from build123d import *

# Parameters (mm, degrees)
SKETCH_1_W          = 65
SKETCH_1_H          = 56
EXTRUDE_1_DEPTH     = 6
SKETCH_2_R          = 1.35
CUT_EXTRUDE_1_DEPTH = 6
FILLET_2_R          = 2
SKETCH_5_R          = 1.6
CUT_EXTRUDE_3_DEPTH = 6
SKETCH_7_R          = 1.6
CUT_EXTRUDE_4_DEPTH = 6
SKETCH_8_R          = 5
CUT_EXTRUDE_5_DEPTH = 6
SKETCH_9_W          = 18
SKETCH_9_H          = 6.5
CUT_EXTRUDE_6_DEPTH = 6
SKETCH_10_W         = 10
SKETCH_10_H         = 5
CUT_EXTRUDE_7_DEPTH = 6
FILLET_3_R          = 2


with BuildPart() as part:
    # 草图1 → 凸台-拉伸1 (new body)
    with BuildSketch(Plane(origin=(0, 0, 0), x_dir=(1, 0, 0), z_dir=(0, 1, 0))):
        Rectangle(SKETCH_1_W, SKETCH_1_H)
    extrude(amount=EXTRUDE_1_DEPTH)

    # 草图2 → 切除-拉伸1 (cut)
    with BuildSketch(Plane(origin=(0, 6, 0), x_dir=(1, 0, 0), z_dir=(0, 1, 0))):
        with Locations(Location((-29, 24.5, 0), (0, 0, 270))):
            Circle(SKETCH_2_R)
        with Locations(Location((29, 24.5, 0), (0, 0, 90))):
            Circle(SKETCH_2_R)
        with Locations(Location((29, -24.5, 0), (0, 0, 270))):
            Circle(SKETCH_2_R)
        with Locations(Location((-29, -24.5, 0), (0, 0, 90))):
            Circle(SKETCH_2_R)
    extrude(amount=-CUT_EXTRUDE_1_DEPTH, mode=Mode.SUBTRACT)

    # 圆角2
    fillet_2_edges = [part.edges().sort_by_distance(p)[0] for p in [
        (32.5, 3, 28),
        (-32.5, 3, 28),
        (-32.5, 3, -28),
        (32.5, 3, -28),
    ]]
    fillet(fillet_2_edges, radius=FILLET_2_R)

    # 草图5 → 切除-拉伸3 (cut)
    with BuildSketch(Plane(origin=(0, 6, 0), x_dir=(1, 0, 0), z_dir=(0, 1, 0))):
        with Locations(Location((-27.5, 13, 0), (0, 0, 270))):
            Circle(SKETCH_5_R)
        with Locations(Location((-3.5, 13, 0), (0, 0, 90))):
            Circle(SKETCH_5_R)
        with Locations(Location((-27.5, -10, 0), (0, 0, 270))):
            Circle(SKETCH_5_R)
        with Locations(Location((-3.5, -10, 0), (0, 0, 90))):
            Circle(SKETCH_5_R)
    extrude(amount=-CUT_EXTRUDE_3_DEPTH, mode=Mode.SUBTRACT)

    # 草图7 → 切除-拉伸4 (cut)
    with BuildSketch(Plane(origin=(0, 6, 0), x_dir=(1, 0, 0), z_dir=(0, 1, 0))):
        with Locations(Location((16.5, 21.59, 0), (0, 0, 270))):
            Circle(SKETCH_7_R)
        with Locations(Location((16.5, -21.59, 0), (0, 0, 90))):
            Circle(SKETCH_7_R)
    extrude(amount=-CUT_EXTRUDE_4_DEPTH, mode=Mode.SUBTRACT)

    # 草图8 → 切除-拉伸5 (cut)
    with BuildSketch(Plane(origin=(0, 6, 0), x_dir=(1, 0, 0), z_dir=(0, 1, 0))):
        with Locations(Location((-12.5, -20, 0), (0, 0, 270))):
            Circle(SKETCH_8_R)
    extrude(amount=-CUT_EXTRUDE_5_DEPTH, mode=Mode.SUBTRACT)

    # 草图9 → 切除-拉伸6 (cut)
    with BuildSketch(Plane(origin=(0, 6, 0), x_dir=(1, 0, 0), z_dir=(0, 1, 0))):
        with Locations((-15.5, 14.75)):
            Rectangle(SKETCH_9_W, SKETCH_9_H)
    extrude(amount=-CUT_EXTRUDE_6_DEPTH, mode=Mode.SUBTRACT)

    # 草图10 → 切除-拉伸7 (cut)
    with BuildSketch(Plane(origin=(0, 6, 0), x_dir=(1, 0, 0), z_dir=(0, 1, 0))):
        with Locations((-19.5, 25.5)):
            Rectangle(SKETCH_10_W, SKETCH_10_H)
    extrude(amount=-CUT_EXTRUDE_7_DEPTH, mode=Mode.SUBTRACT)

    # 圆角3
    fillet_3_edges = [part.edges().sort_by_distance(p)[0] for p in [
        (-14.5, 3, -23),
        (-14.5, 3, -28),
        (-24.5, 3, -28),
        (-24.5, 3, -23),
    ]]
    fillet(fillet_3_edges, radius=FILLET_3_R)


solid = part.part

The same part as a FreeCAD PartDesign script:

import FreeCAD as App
import Part
import Sketcher
Q = App.Units.Quantity


def edges_at(feature, points):
    """Names of the edges that pass closest to the given points."""
    edges = feature.Shape.Edges
    near = lambda p: min(range(len(edges)), key=lambda i: edges[i].distToShape(Part.Vertex(*p))[0])
    return sorted({f"Edge{near(p) + 1}" for p in points})


def add_polygon(sketch, points):
    """Adds a closed chain of lines whose ends are joined by coincident constraints."""
    first, n = sketch.GeometryCount, len(points)
    for a, b in zip(points, points[1:] + points[:1]):
        sketch.addGeometry(Part.LineSegment(App.Vector(*a, 0), App.Vector(*b, 0)), False)
    for i in range(n):
        sketch.addConstraint(Sketcher.Constraint("Coincident", first + i, 2, first + (i + 1) % n, 1))

doc = App.newDocument("Part")
body = doc.addObject("PartDesign::Body", "Body")

# Sketch on XZ plane
sketch1 = doc.addObject("Sketcher::SketchObject", "Sketch")
body.addObject(sketch1)
sketch1.AttachmentSupport = (doc.XZ_Plane, [""])
sketch1.MapMode = "FlatFace"
add_polygon(sketch1, [(-32.5, -28), (-32.5, 28), (32.5, 28), (32.5, -28)])  # lines 0-3
sketch1.addConstraint(Sketcher.Constraint("Vertical", 0))
sketch1.addConstraint(Sketcher.Constraint("Horizontal", 1))
sketch1.addConstraint(Sketcher.Constraint("Vertical", 2))
sketch1.addConstraint(Sketcher.Constraint("Horizontal", 3))
sketch1.addConstraint(Sketcher.Constraint("Symmetric", 0, 2, 2, 2, -1, 1))
sketch1.addConstraint(Sketcher.Constraint("DistanceX", 1, 1, 1, 2, Q("65 mm")))
sketch1.addConstraint(Sketcher.Constraint("DistanceY", 0, 1, 0, 2, Q("56 mm")))
pad1 = doc.addObject("PartDesign::Pad", "Pad")
body.addObject(pad1)
pad1.Profile = sketch1
pad1.Length = 6
pad1.Reversed = True

# Sketch on XZ plane
sketch2 = doc.addObject("Sketcher::SketchObject", "Sketch001")
body.addObject(sketch2)
sketch2.AttachmentSupport = (doc.XZ_Plane, [""])
sketch2.MapMode = "FlatFace"
sketch2.AttachmentOffset = App.Placement(App.Vector(0, 0, -6), App.Rotation())
sketch2.addGeometry(Part.Circle(App.Vector(-29, -24.5, 0), App.Vector(0, 0, 1), 1.35), False)
sketch2.addGeometry(Part.Circle(App.Vector(29, -24.5, 0), App.Vector(0, 0, 1), 1.35), False)
sketch2.addGeometry(Part.Circle(App.Vector(29, 24.5, 0), App.Vector(0, 0, 1), 1.35), False)
sketch2.addGeometry(Part.Circle(App.Vector(-29, 24.5, 0), App.Vector(0, 0, 1), 1.35), False)
sketch2.addConstraint(Sketcher.Constraint("Equal", 0, 1))
sketch2.addConstraint(Sketcher.Constraint("Equal", 1, 2))
sketch2.addConstraint(Sketcher.Constraint("Equal", 2, 3))
sketch2.addConstraint(Sketcher.Constraint("Symmetric", 0, 3, 2, 3, -1, 1))
sketch2.addConstraint(Sketcher.Constraint("Symmetric", 1, 3, 3, 3, -1, 1))
sketch2.addConstraint(Sketcher.Constraint("Symmetric", 0, 3, 1, 3, -2))
sketch2.addConstraint(Sketcher.Constraint("Diameter", 0, Q("2.7 mm")))
sketch2.addConstraint(Sketcher.Constraint("DistanceX", 0, 3, -1, 1, Q("29 mm")))
sketch2.addConstraint(Sketcher.Constraint("DistanceY", 1, 3, 2, 3, Q("49 mm")))
pocket1 = doc.addObject("PartDesign::Pocket", "Pocket")
body.addObject(pocket1)
pocket1.Profile = sketch2
pocket1.Length = 6
pocket1.Reversed = True
doc.recompute()

fillet = doc.addObject("PartDesign::Fillet", "Fillet")
body.addObject(fillet)
fillet.Base = (pocket1, edges_at(pocket1, [
    (32.5, 3, 28),
    (-32.5, 3, 28),
    (-32.5, 3, -28),
    (32.5, 3, -28),
]))
fillet.Radius = 2

# Sketch on XZ plane
sketch3 = doc.addObject("Sketcher::SketchObject", "Sketch002")
body.addObject(sketch3)
sketch3.AttachmentSupport = (doc.XZ_Plane, [""])
sketch3.MapMode = "FlatFace"
sketch3.AttachmentOffset = App.Placement(App.Vector(0, 0, -6), App.Rotation())
sketch3.addGeometry(Part.Circle(App.Vector(-27.5, -13, 0), App.Vector(0, 0, 1), 1.6), False)
sketch3.addGeometry(Part.Circle(App.Vector(-3.5, -13, 0), App.Vector(0, 0, 1), 1.6), False)
sketch3.addGeometry(Part.Circle(App.Vector(-27.5, 10, 0), App.Vector(0, 0, 1), 1.6), False)
sketch3.addGeometry(Part.Circle(App.Vector(-3.5, 10, 0), App.Vector(0, 0, 1), 1.6), False)
sketch3.addConstraint(Sketcher.Constraint("Equal", 0, 1))
sketch3.addConstraint(Sketcher.Constraint("Equal", 1, 2))
sketch3.addConstraint(Sketcher.Constraint("Equal", 2, 3))
sketch3.addConstraint(Sketcher.Constraint("Horizontal", 0, 3, 1, 3))
sketch3.addConstraint(Sketcher.Constraint("Horizontal", 2, 3, 3, 3))
sketch3.addConstraint(Sketcher.Constraint("Vertical", 0, 3, 2, 3))
sketch3.addConstraint(Sketcher.Constraint("Vertical", 1, 3, 3, 3))
sketch3.addConstraint(Sketcher.Constraint("Diameter", 0, Q("3.2 mm")))
sketch3.addConstraint(Sketcher.Constraint("DistanceY", 0, 3, -1, 1, Q("13 mm")))
sketch3.addConstraint(Sketcher.Constraint("DistanceY", -1, 1, 2, 3, Q("10 mm")))
sketch3.addConstraint(Sketcher.Constraint("DistanceX", 0, 3, 1, 3, Q("24 mm")))
sketch3.addConstraint(Sketcher.Constraint("DistanceX", 0, 3, -1, 1, Q("27.5 mm")))
pocket2 = doc.addObject("PartDesign::Pocket", "Pocket001")
body.addObject(pocket2)
pocket2.Profile = sketch3
pocket2.Length = 6
pocket2.Reversed = True

# Sketch on XZ plane
sketch4 = doc.addObject("Sketcher::SketchObject", "Sketch003")
body.addObject(sketch4)
sketch4.AttachmentSupport = (doc.XZ_Plane, [""])
sketch4.MapMode = "FlatFace"
sketch4.AttachmentOffset = App.Placement(App.Vector(0, 0, -6), App.Rotation())
sketch4.addGeometry(Part.Circle(App.Vector(16.5, -21.59, 0), App.Vector(0, 0, 1), 1.6), False)
sketch4.addGeometry(Part.Circle(App.Vector(16.5, 21.59, 0), App.Vector(0, 0, 1), 1.6), False)
sketch4.addConstraint(Sketcher.Constraint("Equal", 0, 1))
sketch4.addConstraint(Sketcher.Constraint("Symmetric", 0, 3, 1, 3, -1))
sketch4.addConstraint(Sketcher.Constraint("Diameter", 0, Q("3.2 mm")))
sketch4.addConstraint(Sketcher.Constraint("DistanceX", -1, 1, 0, 3, Q("16.5 mm")))
sketch4.addConstraint(Sketcher.Constraint("DistanceY", 0, 3, -1, 1, Q("21.59 mm")))
pocket3 = doc.addObject("PartDesign::Pocket", "Pocket002")
body.addObject(pocket3)
pocket3.Profile = sketch4
pocket3.Length = 6
pocket3.Reversed = True

# Sketch on XZ plane
sketch5 = doc.addObject("Sketcher::SketchObject", "Sketch004")
body.addObject(sketch5)
sketch5.AttachmentSupport = (doc.XZ_Plane, [""])
sketch5.MapMode = "FlatFace"
sketch5.AttachmentOffset = App.Placement(App.Vector(0, 0, -6), App.Rotation())
sketch5.addGeometry(Part.Circle(App.Vector(-12.5, 20, 0), App.Vector(0, 0, 1), 5), False)
sketch5.addConstraint(Sketcher.Constraint("Diameter", 0, Q("10 mm")))
sketch5.addConstraint(Sketcher.Constraint("DistanceY", -1, 1, 0, 3, Q("20 mm")))
sketch5.addConstraint(Sketcher.Constraint("DistanceX", 0, 3, -1, 1, Q("12.5 mm")))
pocket4 = doc.addObject("PartDesign::Pocket", "Pocket003")
body.addObject(pocket4)
pocket4.Profile = sketch5
pocket4.Length = 6
pocket4.Reversed = True

# Sketch on XZ plane
sketch6 = doc.addObject("Sketcher::SketchObject", "Sketch005")
body.addObject(sketch6)
sketch6.AttachmentSupport = (doc.XZ_Plane, [""])
sketch6.MapMode = "FlatFace"
sketch6.AttachmentOffset = App.Placement(App.Vector(0, 0, -6), App.Rotation())
add_polygon(sketch6, [(-24.5, -18), (-24.5, -11.5), (-6.5, -11.5), (-6.5, -18)])  # lines 0-3
sketch6.addConstraint(Sketcher.Constraint("Vertical", 0))
sketch6.addConstraint(Sketcher.Constraint("Horizontal", 1))
sketch6.addConstraint(Sketcher.Constraint("Vertical", 2))
sketch6.addConstraint(Sketcher.Constraint("Horizontal", 3))
sketch6.addConstraint(Sketcher.Constraint("DistanceX", 1, 1, 1, 2, Q("18 mm")))
sketch6.addConstraint(Sketcher.Constraint("DistanceY", 0, 1, 0, 2, Q("6.5 mm")))
sketch6.addConstraint(Sketcher.Constraint("DistanceY", 2, 2, -1, 1, Q("18 mm")))
sketch6.addConstraint(Sketcher.Constraint("DistanceX", 0, 2, -1, 1, Q("24.5 mm")))
pocket5 = doc.addObject("PartDesign::Pocket", "Pocket004")
body.addObject(pocket5)
pocket5.Profile = sketch6
pocket5.Length = 6
pocket5.Reversed = True

# Sketch on XZ plane
sketch7 = doc.addObject("Sketcher::SketchObject", "Sketch006")
body.addObject(sketch7)
sketch7.AttachmentSupport = (doc.XZ_Plane, [""])
sketch7.MapMode = "FlatFace"
sketch7.AttachmentOffset = App.Placement(App.Vector(0, 0, -6), App.Rotation())
add_polygon(sketch7, [(-24.5, -28), (-24.5, -23), (-14.5, -23), (-14.5, -28)])  # lines 0-3
sketch7.addConstraint(Sketcher.Constraint("Vertical", 0))
sketch7.addConstraint(Sketcher.Constraint("Horizontal", 1))
sketch7.addConstraint(Sketcher.Constraint("Vertical", 2))
sketch7.addConstraint(Sketcher.Constraint("Horizontal", 3))
sketch7.addConstraint(Sketcher.Constraint("DistanceX", 1, 1, 1, 2, Q("10 mm")))
sketch7.addConstraint(Sketcher.Constraint("DistanceY", 0, 1, 0, 2, Q("5 mm")))
sketch7.addConstraint(Sketcher.Constraint("DistanceY", 0, 2, -1, 1, Q("23 mm")))
sketch7.addConstraint(Sketcher.Constraint("DistanceX", 0, 2, -1, 1, Q("24.5 mm")))
pocket6 = doc.addObject("PartDesign::Pocket", "Pocket005")
body.addObject(pocket6)
pocket6.Profile = sketch7
pocket6.Length = 6
pocket6.Reversed = True
doc.recompute()

fillet2 = doc.addObject("PartDesign::Fillet", "Fillet001")
body.addObject(fillet2)
fillet2.Base = (pocket6, edges_at(pocket6, [
    (-14.5, 3, -23),
    (-14.5, 3, -28),
    (-24.5, 3, -28),
    (-24.5, 3, -23),
]))
fillet2.Radius = 2

doc.recompute()
